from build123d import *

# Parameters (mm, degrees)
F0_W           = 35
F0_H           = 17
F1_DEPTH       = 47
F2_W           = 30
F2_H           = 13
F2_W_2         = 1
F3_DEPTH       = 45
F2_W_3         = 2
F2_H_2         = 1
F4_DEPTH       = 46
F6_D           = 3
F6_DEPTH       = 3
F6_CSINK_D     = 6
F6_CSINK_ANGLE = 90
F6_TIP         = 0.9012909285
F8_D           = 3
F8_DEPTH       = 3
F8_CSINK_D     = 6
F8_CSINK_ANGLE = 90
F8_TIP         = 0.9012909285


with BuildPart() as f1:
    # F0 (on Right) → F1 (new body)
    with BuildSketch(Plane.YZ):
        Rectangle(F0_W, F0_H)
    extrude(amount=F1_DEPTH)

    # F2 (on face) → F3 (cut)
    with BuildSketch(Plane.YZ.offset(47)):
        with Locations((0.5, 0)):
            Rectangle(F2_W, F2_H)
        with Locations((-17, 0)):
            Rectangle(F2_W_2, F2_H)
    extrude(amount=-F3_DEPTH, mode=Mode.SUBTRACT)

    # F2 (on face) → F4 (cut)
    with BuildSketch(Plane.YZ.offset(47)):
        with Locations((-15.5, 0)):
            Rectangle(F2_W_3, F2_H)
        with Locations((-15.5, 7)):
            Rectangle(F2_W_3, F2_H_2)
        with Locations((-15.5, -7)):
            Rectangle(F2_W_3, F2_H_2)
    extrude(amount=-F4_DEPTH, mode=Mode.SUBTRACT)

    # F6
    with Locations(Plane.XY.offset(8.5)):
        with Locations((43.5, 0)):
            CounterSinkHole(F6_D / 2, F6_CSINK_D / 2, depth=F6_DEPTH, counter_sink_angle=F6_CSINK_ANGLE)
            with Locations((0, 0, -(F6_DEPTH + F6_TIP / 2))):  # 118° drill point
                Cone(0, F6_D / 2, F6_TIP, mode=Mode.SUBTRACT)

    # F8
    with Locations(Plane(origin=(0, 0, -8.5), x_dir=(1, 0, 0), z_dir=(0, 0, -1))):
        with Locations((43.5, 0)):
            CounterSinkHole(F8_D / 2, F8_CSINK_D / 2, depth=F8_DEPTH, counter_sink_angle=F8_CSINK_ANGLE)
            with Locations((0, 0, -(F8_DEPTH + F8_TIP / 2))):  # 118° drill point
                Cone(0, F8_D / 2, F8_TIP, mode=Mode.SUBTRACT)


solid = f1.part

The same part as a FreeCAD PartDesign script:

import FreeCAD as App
import Part
import Sketcher
Q = App.Units.Quantity


def add_polygon(sketch, points):
    """Adds a closed chain of lines whose ends are joined by coincident constraints."""
    first, n = sketch.GeometryCount, len(points)
    for a, b in zip(points, points[1:] + points[:1]):
        sketch.addGeometry(Part.LineSegment(App.Vector(*a, 0), App.Vector(*b, 0)), False)
    for i in range(n):
        sketch.addConstraint(Sketcher.Constraint("Coincident", first + i, 2, first + (i + 1) % n, 1))

doc = App.newDocument("Part")
body = doc.addObject("PartDesign::Body", "Body")

# Sketch on YZ plane
sketch1 = body.newObject("Sketcher::SketchObject", "Sketch")
sketch1.AttachmentSupport = (doc.getObject("YZ_Plane"), [""])
sketch1.MapMode = "FlatFace"
add_polygon(sketch1, [(-18, 8), (-18, -8), (18, -8), (18, 8)])  # lines 0-3
sketch1.addConstraint(Sketcher.Constraint("Vertical", 0))
sketch1.addConstraint(Sketcher.Constraint("Horizontal", 1))
sketch1.addConstraint(Sketcher.Constraint("Vertical", 2))
sketch1.addConstraint(Sketcher.Constraint("Horizontal", 3))
sketch1.addConstraint(Sketcher.Constraint("Symmetric", 0, 2, 2, 2, -1, 1))
sketch1.addConstraint(Sketcher.Constraint("DistanceX", 1, 1, 1, 2, Q("35 mm")))
sketch1.addConstraint(Sketcher.Constraint("DistanceY", 0, 2, 0, 1, Q("17 mm")))
pad1 = body.newObject("PartDesign::Pad", "Pad")
pad1.Profile = sketch1
pad1.Length = 47

# Sketch on YZ plane
sketch2 = body.newObject("Sketcher::SketchObject", "Sketch001")
sketch2.AttachmentSupport = (doc.getObject("YZ_Plane"), [""])
sketch2.MapMode = "FlatFace"
sketch2.AttachmentOffset = App.Placement(App.Vector(0, 0, 47), App.Rotation())
add_polygon(sketch2, [(-14.5, 6.5), (-14.5, -6.5), (15.5, -6.5), (15.5, 6.5)])  # lines 0-3
add_polygon(sketch2, [(-17.5, 6.5), (-17.5, -6.5), (-16.5, -6.5), (-16.5, 6.5)])  # lines 4-7
sketch2.addConstraint(Sketcher.Constraint("Vertical", 0))
sketch2.addConstraint(Sketcher.Constraint("Horizontal", 1))
sketch2.addConstraint(Sketcher.Constraint("Vertical", 2))
sketch2.addConstraint(Sketcher.Constraint("Horizontal", 3))
sketch2.addConstraint(Sketcher.Constraint("Vertical", 4))
sketch2.addConstraint(Sketcher.Constraint("Horizontal", 5))
sketch2.addConstraint(Sketcher.Constraint("Vertical", 6))
sketch2.addConstraint(Sketcher.Constraint("Horizontal", 7))
sketch2.addConstraint(Sketcher.Constraint("Horizontal", 1, 2, 4, 2))
sketch2.addConstraint(Sketcher.Constraint("Horizontal", 3, 2, 6, 2))
sketch2.addConstraint(Sketcher.Constraint("DistanceX", 1, 1, 1, 2, Q("30 mm")))
sketch2.addConstraint(Sketcher.Constraint("DistanceX", 5, 1, 5, 2, Q("1 mm")))
sketch2.addConstraint(Sketcher.Constraint("DistanceY", 0, 2, 0, 1, Q("13 mm")))
sketch2.addConstraint(Sketcher.Constraint("DistanceX", 4, 2, 0, 2, Q("3 mm")))
sketch2.addConstraint(Sketcher.Constraint("DistanceX", 0, 2, -1, 1, Q("14.5 mm")))
sketch2.addConstraint(Sketcher.Constraint("DistanceY", 0, 2, -1, 1, Q("6.5 mm")))
pocket1 = body.newObject("PartDesign::Pocket", "Pocket")
pocket1.Profile = sketch2
pocket1.Length = 45

# Sketch on YZ plane
sketch3 = body.newObject("Sketcher::SketchObject", "Sketch002")
sketch3.AttachmentSupport = (doc.getObject("YZ_Plane"), [""])
sketch3.MapMode = "FlatFace"
sketch3.AttachmentOffset = App.Placement(App.Vector(0, 0, 47), App.Rotation())
add_polygon(sketch3, [(-14.5, 7.5), (-16.5, 7.5), (-16.5, -7.5), (-14.5, -7.5)])  # lines 0-3
sketch3.addConstraint(Sketcher.Constraint("Horizontal", 0))
sketch3.addConstraint(Sketcher.Constraint("Vertical", 1))
sketch3.addConstraint(Sketcher.Constraint("Horizontal", 2))
sketch3.addConstraint(Sketcher.Constraint("Vertical", 3))
sketch3.addConstraint(Sketcher.Constraint("DistanceX", 0, 2, 0, 1, Q("2 mm")))
sketch3.addConstraint(Sketcher.Constraint("DistanceY", 1, 2, 1, 1, Q("15 mm")))
sketch3.addConstraint(Sketcher.Constraint("DistanceX", 0, 2, -1, 1, Q("16.5 mm")))
sketch3.addConstraint(Sketcher.Constraint("DistanceY", -1, 1, 0, 2, Q("7.5 mm")))
pocket2 = body.newObject("PartDesign::Pocket", "Pocket001")
pocket2.Profile = sketch3
pocket2.Length = 46

# Sketch on XY plane
sketch4 = body.newObject("Sketcher::SketchObject", "Sketch003")
sketch4.AttachmentSupport = (doc.getObject("XY_Plane"), [""])
sketch4.MapMode = "FlatFace"
sketch4.AttachmentOffset = App.Placement(App.Vector(0, 0, 8.5), App.Rotation())
sketch4.addGeometry(Part.Circle(App.Vector(43.5, 0, 0), App.Vector(0, 0, 1), 1.5), False)
sketch4.addConstraint(Sketcher.Constraint("PointOnObject", 0, 3, -1))
sketch4.addConstraint(Sketcher.Constraint("Diameter", 0, Q("3 mm")))
sketch4.addConstraint(Sketcher.Constraint("DistanceX", -1, 1, 0, 3, Q("43.5 mm")))
doc.recompute()
hole = body.newObject("PartDesign::Hole", "Hole")
hole.Profile = sketch4
hole.ThreadType = "None"
hole.Diameter = 3
hole.DepthType = "Dimension"
hole.Depth = 3
hole.DrillPoint = "Angled"
hole.DrillPointAngle = 118
hole.HoleCutType = "Countersink"
hole.HoleCutDiameter = 6
hole.HoleCutCountersinkAngle = 90

# Sketch on XY plane
sketch5 = body.newObject("Sketcher::SketchObject", "Sketch004")
sketch5.AttachmentSupport = (doc.getObject("XY_Plane"), [""])
sketch5.MapMode = "FlatFace"
sketch5.AttachmentOffset = App.Placement(App.Vector(0, 0, -8.5), App.Rotation())
sketch5.addGeometry(Part.Circle(App.Vector(43.5, 0, 0), App.Vector(0, 0, 1), 1.5), False)
sketch5.addConstraint(Sketcher.Constraint("PointOnObject", 0, 3, -1))
sketch5.addConstraint(Sketcher.Constraint("Diameter", 0, Q("3 mm")))
sketch5.addConstraint(Sketcher.Constraint("DistanceX", -1, 1, 0, 3, Q("43.5 mm")))
doc.recompute()
hole2 = body.newObject("PartDesign::Hole", "Hole001")
hole2.Profile = sketch5
hole2.ThreadType = "None"
hole2.Diameter = 3
hole2.DepthType = "Dimension"
hole2.Depth = 3
hole2.DrillPoint = "Angled"
hole2.DrillPointAngle = 118
hole2.HoleCutType = "Countersink"
hole2.HoleCutDiameter = 6
hole2.HoleCutCountersinkAngle = 90
hole2.Reversed = True

doc.recompute()
